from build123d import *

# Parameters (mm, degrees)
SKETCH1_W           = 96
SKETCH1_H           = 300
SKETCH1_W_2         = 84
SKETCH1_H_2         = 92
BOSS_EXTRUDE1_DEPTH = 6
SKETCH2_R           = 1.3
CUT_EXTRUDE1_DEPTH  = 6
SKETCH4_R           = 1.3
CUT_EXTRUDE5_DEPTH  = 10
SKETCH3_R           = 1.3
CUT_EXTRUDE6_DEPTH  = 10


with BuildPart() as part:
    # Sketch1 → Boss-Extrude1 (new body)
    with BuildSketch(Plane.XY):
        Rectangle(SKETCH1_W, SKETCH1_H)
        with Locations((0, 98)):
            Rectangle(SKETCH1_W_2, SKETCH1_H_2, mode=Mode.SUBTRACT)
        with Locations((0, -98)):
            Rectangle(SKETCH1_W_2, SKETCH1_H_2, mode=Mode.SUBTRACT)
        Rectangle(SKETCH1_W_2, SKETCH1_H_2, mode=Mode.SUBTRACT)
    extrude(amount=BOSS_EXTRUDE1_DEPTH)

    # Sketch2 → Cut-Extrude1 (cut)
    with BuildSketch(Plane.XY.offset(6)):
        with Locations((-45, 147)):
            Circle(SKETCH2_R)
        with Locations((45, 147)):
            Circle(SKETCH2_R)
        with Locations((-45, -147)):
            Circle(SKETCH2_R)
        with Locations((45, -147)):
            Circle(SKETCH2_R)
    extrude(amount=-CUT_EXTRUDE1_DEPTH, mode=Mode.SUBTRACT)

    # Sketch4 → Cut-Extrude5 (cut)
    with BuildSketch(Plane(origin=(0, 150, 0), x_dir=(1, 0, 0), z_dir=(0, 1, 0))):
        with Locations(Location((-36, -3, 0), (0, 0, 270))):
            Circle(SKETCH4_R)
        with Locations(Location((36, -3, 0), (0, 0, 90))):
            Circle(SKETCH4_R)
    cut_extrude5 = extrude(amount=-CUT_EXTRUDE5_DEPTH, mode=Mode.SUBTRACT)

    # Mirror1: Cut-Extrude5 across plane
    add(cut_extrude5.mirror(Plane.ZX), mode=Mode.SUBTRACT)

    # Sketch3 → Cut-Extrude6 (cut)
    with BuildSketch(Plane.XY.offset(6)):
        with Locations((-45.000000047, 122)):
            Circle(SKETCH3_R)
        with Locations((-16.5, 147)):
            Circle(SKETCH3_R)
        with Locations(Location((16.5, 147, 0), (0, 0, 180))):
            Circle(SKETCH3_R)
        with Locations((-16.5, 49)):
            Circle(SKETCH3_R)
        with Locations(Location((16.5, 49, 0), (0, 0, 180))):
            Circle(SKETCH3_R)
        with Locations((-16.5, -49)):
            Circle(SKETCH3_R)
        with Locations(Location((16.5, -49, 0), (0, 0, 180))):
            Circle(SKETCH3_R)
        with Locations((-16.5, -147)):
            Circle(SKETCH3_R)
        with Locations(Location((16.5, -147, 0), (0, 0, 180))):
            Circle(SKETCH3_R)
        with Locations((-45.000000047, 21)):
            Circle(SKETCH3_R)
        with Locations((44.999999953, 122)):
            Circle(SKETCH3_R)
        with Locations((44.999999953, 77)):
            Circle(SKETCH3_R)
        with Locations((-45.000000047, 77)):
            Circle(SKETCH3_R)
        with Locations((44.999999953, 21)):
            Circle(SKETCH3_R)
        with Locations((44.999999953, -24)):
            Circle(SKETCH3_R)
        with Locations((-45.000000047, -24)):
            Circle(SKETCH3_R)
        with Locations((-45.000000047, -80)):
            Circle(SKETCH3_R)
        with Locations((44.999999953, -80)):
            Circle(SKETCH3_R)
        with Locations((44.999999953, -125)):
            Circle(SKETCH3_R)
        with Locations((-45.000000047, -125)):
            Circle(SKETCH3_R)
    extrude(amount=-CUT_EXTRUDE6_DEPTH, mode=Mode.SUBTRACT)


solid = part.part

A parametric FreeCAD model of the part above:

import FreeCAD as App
import Part
import Sketcher
from FreeCAD import Vector
Q = App.Units.Quantity

doc = App.newDocument("Part")
body = doc.addObject("PartDesign::Body", "Body")

# Sketch on XY plane
sketch1 = body.newObject("Sketcher::SketchObject", "Sketch")
sketch1.AttachmentSupport = (doc.getObject("XY_Plane"), [""])
sketch1.MapMode = "FlatFace"
sketch1.addGeometry(Part.LineSegment(Vector(-48, 150, 0), Vector(-48, -150, 0)), False)
sketch1.addGeometry(Part.LineSegment(Vector(-48, -150, 0), Vector(48, -150, 0)), False)
sketch1.addGeometry(Part.LineSegment(Vector(48, -150, 0), Vector(48, 150, 0)), False)
sketch1.addGeometry(Part.LineSegment(Vector(48, 150, 0), Vector(-48, 150, 0)), False)
sketch1.addGeometry(Part.LineSegment(Vector(42, -144, 0), Vector(-42, -144, 0)), False)
sketch1.addGeometry(Part.LineSegment(Vector(-42, -144, 0), Vector(-42, -52, 0)), False)
sketch1.addGeometry(Part.LineSegment(Vector(-42, -52, 0), Vector(42, -52, 0)), False)
sketch1.addGeometry(Part.LineSegment(Vector(42, -52, 0), Vector(42, -144, 0)), False)
sketch1.addGeometry(Part.LineSegment(Vector(42, -46, 0), Vector(-42, -46, 0)), False)
sketch1.addGeometry(Part.LineSegment(Vector(-42, -46, 0), Vector(-42, 46, 0)), False)
sketch1.addGeometry(Part.LineSegment(Vector(-42, 46, 0), Vector(42, 46, 0)), False)
sketch1.addGeometry(Part.LineSegment(Vector(42, 46, 0), Vector(42, -46, 0)), False)
sketch1.addGeometry(Part.LineSegment(Vector(42, 52, 0), Vector(-42, 52, 0)), False)
sketch1.addGeometry(Part.LineSegment(Vector(-42, 52, 0), Vector(-42, 144, 0)), False)
sketch1.addGeometry(Part.LineSegment(Vector(-42, 144, 0), Vector(42, 144, 0)), False)
sketch1.addGeometry(Part.LineSegment(Vector(42, 144, 0), Vector(42, 52, 0)), False)
sketch1.addConstraint(Sketcher.Constraint("Coincident", 0, 2, 1, 1))
sketch1.addConstraint(Sketcher.Constraint("Coincident", 1, 2, 2, 1))
sketch1.addConstraint(Sketcher.Constraint("Coincident", 2, 2, 3, 1))
sketch1.addConstraint(Sketcher.Constraint("Coincident", 3, 2, 0, 1))
sketch1.addConstraint(Sketcher.Constraint("Coincident", 4, 2, 5, 1))
sketch1.addConstraint(Sketcher.Constraint("Coincident", 5, 2, 6, 1))
sketch1.addConstraint(Sketcher.Constraint("Coincident", 6, 2, 7, 1))
sketch1.addConstraint(Sketcher.Constraint("Coincident", 7, 2, 4, 1))
sketch1.addConstraint(Sketcher.Constraint("Coincident", 8, 2, 9, 1))
sketch1.addConstraint(Sketcher.Constraint("Coincident", 9, 2, 10, 1))
sketch1.addConstraint(Sketcher.Constraint("Coincident", 10, 2, 11, 1))
sketch1.addConstraint(Sketcher.Constraint("Coincident", 11, 2, 8, 1))
sketch1.addConstraint(Sketcher.Constraint("Coincident", 12, 2, 13, 1))
sketch1.addConstraint(Sketcher.Constraint("Coincident", 13, 2, 14, 1))
sketch1.addConstraint(Sketcher.Constraint("Coincident", 14, 2, 15, 1))
sketch1.addConstraint(Sketcher.Constraint("Coincident", 15, 2, 12, 1))
sketch1.addConstraint(Sketcher.Constraint("Vertical", 0))
sketch1.addConstraint(Sketcher.Constraint("Horizontal", 1))
sketch1.addConstraint(Sketcher.Constraint("Vertical", 2))
sketch1.addConstraint(Sketcher.Constraint("Horizontal", 3))
sketch1.addConstraint(Sketcher.Constraint("Horizontal", 4))
sketch1.addConstraint(Sketcher.Constraint("Vertical", 5))
sketch1.addConstraint(Sketcher.Constraint("Horizontal", 6))
sketch1.addConstraint(Sketcher.Constraint("Vertical", 7))
sketch1.addConstraint(Sketcher.Constraint("Horizontal", 8))
sketch1.addConstraint(Sketcher.Constraint("Vertical", 9))
sketch1.addConstraint(Sketcher.Constraint("Horizontal", 10))
sketch1.addConstraint(Sketcher.Constraint("Vertical", 11))
sketch1.addConstraint(Sketcher.Constraint("Horizontal", 12))
sketch1.addConstraint(Sketcher.Constraint("Vertical", 13))
sketch1.addConstraint(Sketcher.Constraint("Horizontal", 14))
sketch1.addConstraint(Sketcher.Constraint("Vertical", 15))
sketch1.addConstraint(Sketcher.Constraint("Symmetric", 0, 2, 2, 2, -1, 1))
sketch1.addConstraint(Sketcher.Constraint("Symmetric", 8, 2, 10, 2, -1, 1))
sketch1.addConstraint(Sketcher.Constraint("Symmetric", 6, 2, 12, 2, -1, 1))
sketch1.addConstraint(Sketcher.Constraint("Symmetric", 4, 2, 14, 2, -1, 1))
sketch1.addConstraint(Sketcher.Constraint("Vertical", 5, 2, 8, 2))
sketch1.addConstraint(Sketcher.Constraint("Vertical", 7, 2, 10, 2))
sketch1.addConstraint(Sketcher.Constraint("Equal", 7, 9))
sketch1.addConstraint(Sketcher.Constraint("DistanceX", 1, 1, 1, 2, Q("96 mm")))
sketch1.addConstraint(Sketcher.Constraint("DistanceX", 4, 2, 4, 1, Q("84 mm")))
sketch1.addConstraint(Sketcher.Constraint("DistanceY", 0, 2, 0, 1, Q("300 mm")))
sketch1.addConstraint(Sketcher.Constraint("DistanceY", 5, 1, 5, 2, Q("92 mm")))
sketch1.addConstraint(Sketcher.Constraint("DistanceY", 4, 2, -1, 1, Q("144 mm")))
pad1 = body.newObject("PartDesign::Pad", "Pad")
pad1.Profile = sketch1
pad1.Length = 6

# Sketch on XY plane
sketch2 = body.newObject("Sketcher::SketchObject", "Sketch001")
sketch2.AttachmentSupport = (doc.getObject("XY_Plane"), [""])
sketch2.MapMode = "FlatFace"
sketch2.AttachmentOffset = App.Placement(Vector(0, 0, 6), App.Rotation())
sketch2.addGeometry(Part.Circle(Vector(-45, 147, 0), Vector(0, 0, 1), 1.3), False)
sketch2.addGeometry(Part.Circle(Vector(45, 147, 0), Vector(0, 0, 1), 1.3), False)
sketch2.addGeometry(Part.Circle(Vector(-45, -147, 0), Vector(0, 0, 1), 1.3), False)
sketch2.addGeometry(Part.Circle(Vector(45, -147, 0), Vector(0, 0, 1), 1.3), False)
sketch2.addConstraint(Sketcher.Constraint("Equal", 0, 1))
sketch2.addConstraint(Sketcher.Constraint("Equal", 1, 2))
sketch2.addConstraint(Sketcher.Constraint("Equal", 2, 3))
sketch2.addConstraint(Sketcher.Constraint("Symmetric", 1, 3, 2, 3, -1, 1))
sketch2.addConstraint(Sketcher.Constraint("Symmetric", 0, 3, 3, 3, -1, 1))
sketch2.addConstraint(Sketcher.Constraint("Symmetric", 0, 3, 1, 3, -2))
sketch2.addConstraint(Sketcher.Constraint("Diameter", 0, Q("2.6 mm")))
sketch2.addConstraint(Sketcher.Constraint("DistanceX", 0, 3, -1, 1, Q("45 mm")))
sketch2.addConstraint(Sketcher.Constraint("DistanceY", -1, 1, 0, 3, Q("147 mm")))
pocket1 = body.newObject("PartDesign::Pocket", "Pocket")
pocket1.Profile = sketch2
pocket1.Length = 6

# Sketch on XZ plane
sketch3 = body.newObject("Sketcher::SketchObject", "Sketch002")
sketch3.AttachmentSupport = (doc.getObject("XZ_Plane"), [""])
sketch3.MapMode = "FlatFace"
sketch3.AttachmentOffset = App.Placement(Vector(0, 0, -150), App.Rotation())
sketch3.addGeometry(Part.Circle(Vector(-36, 3, 0), Vector(0, 0, 1), 1.3), False)
sketch3.addGeometry(Part.Circle(Vector(36, 3, 0), Vector(0, 0, 1), 1.3), False)
sketch3.addConstraint(Sketcher.Constraint("Equal", 0, 1))
sketch3.addConstraint(Sketcher.Constraint("Symmetric", 0, 3, 1, 3, -2))
sketch3.addConstraint(Sketcher.Constraint("Diameter", 0, Q("2.6 mm")))
sketch3.addConstraint(Sketcher.Constraint("DistanceX", 0, 3, -1, 1, Q("36 mm")))
sketch3.addConstraint(Sketcher.Constraint("DistanceY", -1, 1, 0, 3, Q("3 mm")))
pocket2 = body.newObject("PartDesign::Pocket", "Pocket001")
pocket2.Profile = sketch3
pocket2.Length = 10
pocket2.Reversed = True
doc.recompute()

mirrored = body.newObject("PartDesign::Mirrored", "Mirrored")
mirrored.Originals = [pocket2]
mirrored.MirrorPlane = (doc.getObject("XZ_Plane"), [""])
body.Tip = mirrored

# Sketch on XY plane
sketch4 = body.newObject("Sketcher::SketchObject", "Sketch003")
sketch4.AttachmentSupport = (doc.getObject("XY_Plane"), [""])
sketch4.MapMode = "FlatFace"
sketch4.AttachmentOffset = App.Placement(Vector(0, 0, 6), App.Rotation())
sketch4.addGeometry(Part.Circle(Vector(-45, 122, 0), Vector(0, 0, 1), 1.3), False)
sketch4.addGeometry(Part.Circle(Vector(-16.5, 147, 0), Vector(0, 0, 1), 1.3), False)
sketch4.addGeometry(Part.Circle(Vector(16.5, 147, 0), Vector(0, 0, 1), 1.3), False)
sketch4.addGeometry(Part.Circle(Vector(-16.5, 49, 0), Vector(0, 0, 1), 1.3), False)
sketch4.addGeometry(Part.Circle(Vector(16.5, 49, 0), Vector(0, 0, 1), 1.3), False)
sketch4.addGeometry(Part.Circle(Vector(-16.5, -49, 0), Vector(0, 0, 1), 1.3), False)
sketch4.addGeometry(Part.Circle(Vector(16.5, -49, 0), Vector(0, 0, 1), 1.3), False)
sketch4.addGeometry(Part.Circle(Vector(-16.5, -147, 0), Vector(0, 0, 1), 1.3), False)
sketch4.addGeometry(Part.Circle(Vector(16.5, -147, 0), Vector(0, 0, 1), 1.3), False)
sketch4.addGeometry(Part.Circle(Vector(-45, 21, 0), Vector(0, 0, 1), 1.3), False)
sketch4.addGeometry(Part.Circle(Vector(45, 122, 0), Vector(0, 0, 1), 1.3), False)
sketch4.addGeometry(Part.Circle(Vector(45, 77, 0), Vector(0, 0, 1), 1.3), False)
sketch4.addGeometry(Part.Circle(Vector(-45, 77, 0), Vector(0, 0, 1), 1.3), False)
sketch4.addGeometry(Part.Circle(Vector(45, 21, 0), Vector(0, 0, 1), 1.3), False)
sketch4.addGeometry(Part.Circle(Vector(45, -24, 0), Vector(0, 0, 1), 1.3), False)
sketch4.addGeometry(Part.Circle(Vector(-45, -24, 0), Vector(0, 0, 1), 1.3), False)
sketch4.addGeometry(Part.Circle(Vector(-45, -80, 0), Vector(0, 0, 1), 1.3), False)
sketch4.addGeometry(Part.Circle(Vector(45, -80, 0), Vector(0, 0, 1), 1.3), False)
sketch4.addGeometry(Part.Circle(Vector(45, -125, 0), Vector(0, 0, 1), 1.3), False)
sketch4.addGeometry(Part.Circle(Vector(-45, -125, 0), Vector(0, 0, 1), 1.3), False)
sketch4.addConstraint(Sketcher.Constraint("Equal", 0, 1))
sketch4.addConstraint(Sketcher.Constraint("Equal", 1, 2))
sketch4.addConstraint(Sketcher.Constraint("Equal", 2, 3))
sketch4.addConstraint(Sketcher.Constraint("Equal", 3, 4))
sketch4.addConstraint(Sketcher.Constraint("Equal", 4, 5))
sketch4.addConstraint(Sketcher.Constraint("Equal", 5, 6))
sketch4.addConstraint(Sketcher.Constraint("Equal", 6, 7))
sketch4.addConstraint(Sketcher.Constraint("Equal", 7, 8))
sketch4.addConstraint(Sketcher.Constraint("Equal", 8, 9))
sketch4.addConstraint(Sketcher.Constraint("Equal", 9, 10))
sketch4.addConstraint(Sketcher.Constraint("Equal", 10, 11))
sketch4.addConstraint(Sketcher.Constraint("Equal", 11, 12))
sketch4.addConstraint(Sketcher.Constraint("Equal", 12, 13))
sketch4.addConstraint(Sketcher.Constraint("Equal", 13, 14))
sketch4.addConstraint(Sketcher.Constraint("Equal", 14, 15))
sketch4.addConstraint(Sketcher.Constraint("Equal", 15, 16))
sketch4.addConstraint(Sketcher.Constraint("Equal", 16, 17))
sketch4.addConstraint(Sketcher.Constraint("Equal", 17, 18))
sketch4.addConstraint(Sketcher.Constraint("Equal", 18, 19))
sketch4.addConstraint(Sketcher.Constraint("Symmetric", 4, 3, 5, 3, -1, 1))
sketch4.addConstraint(Sketcher.Constraint("Symmetric", 3, 3, 6, 3, -1, 1))
sketch4.addConstraint(Sketcher.Constraint("Symmetric", 2, 3, 7, 3, -1, 1))
sketch4.addConstraint(Sketcher.Constraint("Symmetric", 1, 3, 8, 3, -1, 1))
sketch4.addConstraint(Sketcher.Constraint("Symmetric", 1, 3, 2, 3, -2))
sketch4.addConstraint(Sketcher.Constraint("Symmetric", 3, 3, 4, 3, -2))
sketch4.addConstraint(Sketcher.Constraint("Symmetric", 0, 3, 10, 3, -2))
sketch4.addConstraint(Sketcher.Constraint("Symmetric", 11, 3, 12, 3, -2))
sketch4.addConstraint(Sketcher.Constraint("Symmetric", 9, 3, 13, 3, -2))
sketch4.addConstraint(Sketcher.Constraint("Symmetric", 14, 3, 15, 3, -2))
sketch4.addConstraint(Sketcher.Constraint("Symmetric", 16, 3, 17, 3, -2))
sketch4.addConstraint(Sketcher.Constraint("Symmetric", 18, 3, 19, 3, -2))
sketch4.addConstraint(Sketcher.Constraint("Vertical", 1, 3, 3, 3))
sketch4.addConstraint(Sketcher.Constraint("Vertical", 0, 3, 9, 3))
sketch4.addConstraint(Sketcher.Constraint("Vertical", 10, 3, 11, 3))
sketch4.addConstraint(Sketcher.Constraint("Vertical", 13, 3, 14, 3))
sketch4.addConstraint(Sketcher.Constraint("Vertical", 15, 3, 16, 3))
sketch4.addConstraint(Sketcher.Constraint("Vertical", 17, 3, 18, 3))
sketch4.addConstraint(Sketcher.Constraint("Diameter", 0, Q("2.6 mm")))
sketch4.addConstraint(Sketcher.Constraint("DistanceX", 0, 3, -1, 1, Q("45 mm")))
sketch4.addConstraint(Sketcher.Constraint("DistanceY", -1, 1, 0, 3, Q("122 mm")))
sketch4.addConstraint(Sketcher.Constraint("DistanceY", -1, 1, 1, 3, Q("147 mm")))
sketch4.addConstraint(Sketcher.Constraint("DistanceY", -1, 1, 3, 3, Q("49 mm")))
sketch4.addConstraint(Sketcher.Constraint("DistanceY", -1, 1, 9, 3, Q("21 mm")))
sketch4.addConstraint(Sketcher.Constraint("DistanceY", -1, 1, 11, 3, Q("77 mm")))
sketch4.addConstraint(Sketcher.Constraint("DistanceY", 14, 3, -1, 1, Q("24 mm")))
sketch4.addConstraint(Sketcher.Constraint("DistanceY", 16, 3, -1, 1, Q("80 mm")))
sketch4.addConstraint(Sketcher.Constraint("DistanceY", 18, 3, -1, 1, Q("125 mm")))
sketch4.addConstraint(Sketcher.Constraint("DistanceX", 1, 3, 2, 3, Q("33 mm")))
pocket3 = body.newObject("PartDesign::Pocket", "Pocket002")
pocket3.Profile = sketch4
pocket3.Length = 10

doc.recompute()
